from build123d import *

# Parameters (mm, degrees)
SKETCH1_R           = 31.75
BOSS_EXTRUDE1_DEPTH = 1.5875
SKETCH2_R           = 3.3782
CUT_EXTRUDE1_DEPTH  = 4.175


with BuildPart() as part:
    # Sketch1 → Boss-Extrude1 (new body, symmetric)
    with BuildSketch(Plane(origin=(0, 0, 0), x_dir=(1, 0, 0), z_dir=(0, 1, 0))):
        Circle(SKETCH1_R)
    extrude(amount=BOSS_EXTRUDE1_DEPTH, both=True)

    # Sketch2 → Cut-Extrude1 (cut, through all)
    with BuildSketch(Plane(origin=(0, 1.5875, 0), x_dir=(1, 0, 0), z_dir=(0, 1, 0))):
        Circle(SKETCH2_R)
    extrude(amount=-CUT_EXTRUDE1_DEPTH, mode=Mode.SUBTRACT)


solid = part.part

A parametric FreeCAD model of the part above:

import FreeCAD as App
import Part
import Sketcher
from FreeCAD import Vector
Q = App.Units.Quantity

doc = App.newDocument("Part")
params = doc.addObject("Spreadsheet::Sheet", "Params")
for row, (alias, value) in enumerate([
    ("sketch1_diameter", "2.5 in"),
    ("pad1_length", "0.125 in"),
    ("sketch2_diameter", "0.266 in"),
], start=1):
    params.set(f"A{row}", alias)
    params.set(f"B{row}", "=" + value)
    params.setAlias(f"B{row}", alias)

body = doc.addObject("PartDesign::Body", "Body")

sketch1 = body.newObject("Sketcher::SketchObject", "Sketch")
sketch1.AttachmentSupport = (doc.getObject("XZ_Plane"), [""])
sketch1.MapMode = "FlatFace"
sketch1.addGeometry(Part.Circle(Vector(0, 0, 0), Vector(0, 0, 1), 32), False)
sketch1.addConstraint([
    Sketcher.Constraint("Coincident", 0, 3, -1, 1),
    Sketcher.Constraint("Diameter", 0, Q("2.5 in")),
])
sketch1.setExpression("Constraints[1]", "Params.sketch1_diameter")
pad1 = body.newObject("PartDesign::Pad", "Pad")
pad1.Profile = sketch1
pad1.setExpression("Length", "Params.pad1_length")
pad1.Midplane = True

sketch2 = body.newObject("Sketcher::SketchObject", "Sketch001")
sketch2.AttachmentSupport = (doc.getObject("XZ_Plane"), [""])
sketch2.MapMode = "FlatFace"
sketch2.AttachmentOffset = App.Placement(Vector(0, 0, -0.0625 * 25.4), App.Rotation())
sketch2.addGeometry(Part.Circle(Vector(0, 0, 0), Vector(0, 0, 1), 3.4), False)
sketch2.addConstraint([
    Sketcher.Constraint("Coincident", 0, 3, -1, 1),
    Sketcher.Constraint("Diameter", 0, Q("0.266 in")),
])
sketch2.setExpression("Constraints[1]", "Params.sketch2_diameter")
pocket1 = body.newObject("PartDesign::Pocket", "Pocket")
pocket1.Profile = sketch2
pocket1.Type = "ThroughAll"
pocket1.Reversed = True

doc.recompute()
